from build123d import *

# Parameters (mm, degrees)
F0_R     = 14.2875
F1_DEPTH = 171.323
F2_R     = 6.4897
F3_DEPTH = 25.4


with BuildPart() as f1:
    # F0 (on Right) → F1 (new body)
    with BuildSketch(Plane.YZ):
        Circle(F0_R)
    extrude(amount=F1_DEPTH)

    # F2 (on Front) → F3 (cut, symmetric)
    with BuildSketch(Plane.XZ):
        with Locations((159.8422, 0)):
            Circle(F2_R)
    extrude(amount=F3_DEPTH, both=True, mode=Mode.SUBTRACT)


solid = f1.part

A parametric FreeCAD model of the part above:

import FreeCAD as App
import Part
import Sketcher
Q = App.Units.Quantity

doc = App.newDocument("Part")
body = doc.addObject("PartDesign::Body", "Body")

sketch1 = body.newObject("Sketcher::SketchObject", "Sketch")
sketch1.AttachmentSupport = (doc.getObject("YZ_Plane"), [""])
sketch1.MapMode = "FlatFace"
sketch1.addGeometry(Part.Circle(App.Vector(0, 0, 0), App.Vector(0, 0, 1), 14), False)
sketch1.addConstraint(Sketcher.Constraint("Coincident", 0, 3, -1, 1))
sketch1.addConstraint(Sketcher.Constraint("Diameter", 0, Q("1.125 in")))
pad1 = body.newObject("PartDesign::Pad", "Pad")
pad1.Profile = sketch1
pad1.Length = Q("6.745 in")

sketch2 = body.newObject("Sketcher::SketchObject", "Sketch001")
sketch2.AttachmentSupport = (doc.getObject("XZ_Plane"), [""])
sketch2.MapMode = "FlatFace"
sketch2.addGeometry(Part.Circle(App.Vector(160, 0, 0), App.Vector(0, 0, 1), 6), False)
sketch2.addConstraint(Sketcher.Constraint("PointOnObject", 0, 3, -1))
sketch2.addConstraint(Sketcher.Constraint("Diameter", 0, Q("0.511 in")))
sketch2.addConstraint(Sketcher.Constraint("DistanceX", -1, 1, 0, 3, Q("6.293 in")))
pocket1 = body.newObject("PartDesign::Pocket", "Pocket")
pocket1.Profile = sketch2
pocket1.Length = Q("2 in")
pocket1.Midplane = True

doc.recompute()
